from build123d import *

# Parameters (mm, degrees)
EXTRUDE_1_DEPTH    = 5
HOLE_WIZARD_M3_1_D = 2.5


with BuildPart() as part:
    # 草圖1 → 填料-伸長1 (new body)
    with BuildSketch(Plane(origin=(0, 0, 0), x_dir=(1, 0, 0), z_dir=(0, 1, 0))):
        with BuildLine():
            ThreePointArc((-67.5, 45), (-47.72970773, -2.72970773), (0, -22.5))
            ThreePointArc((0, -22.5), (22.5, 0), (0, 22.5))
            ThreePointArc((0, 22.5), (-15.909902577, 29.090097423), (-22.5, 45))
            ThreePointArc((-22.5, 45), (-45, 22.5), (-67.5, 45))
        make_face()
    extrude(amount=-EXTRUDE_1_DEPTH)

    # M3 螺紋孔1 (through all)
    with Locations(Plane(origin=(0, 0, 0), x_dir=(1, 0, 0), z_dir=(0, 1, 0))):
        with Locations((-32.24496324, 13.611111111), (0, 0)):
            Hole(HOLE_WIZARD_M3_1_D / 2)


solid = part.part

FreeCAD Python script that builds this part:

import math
import FreeCAD as App
import Part
import Sketcher
from FreeCAD import Vector

doc = App.newDocument("Part")
body = doc.addObject("PartDesign::Body", "Body")

# Sketch on XZ plane
sketch1 = body.newObject("Sketcher::SketchObject", "Sketch")
sketch1.AttachmentSupport = (doc.getObject("XZ_Plane"), [""])
sketch1.MapMode = "FlatFace"
sketch1.addGeometry(Part.ArcOfCircle(Part.Circle(Vector(0, -45, 0), Vector(0, 0, 1), 67.5), math.radians(90), math.radians(180)), False)
sketch1.addGeometry(Part.ArcOfCircle(Part.Circle(Vector(0, 0, 0), Vector(0, 0, 1), 22.5), math.radians(-90), math.radians(90)), False)
sketch1.addGeometry(Part.ArcOfCircle(Part.Circle(Vector(0, -45, 0), Vector(0, 0, 1), 22.5), math.radians(90), math.radians(180)), False)
sketch1.addGeometry(Part.ArcOfCircle(Part.Circle(Vector(-45, -45, 0), Vector(0, 0, 1), 22.5), math.radians(0), math.radians(180)), False)
sketch1.addConstraint(Sketcher.Constraint("Tangent", 0, 1, 1, 2))
sketch1.addConstraint(Sketcher.Constraint("Tangent", 1, 1, 2, 1))
sketch1.addConstraint(Sketcher.Constraint("Tangent", 2, 2, 3, 1))
sketch1.addConstraint(Sketcher.Constraint("Tangent", 3, 2, 0, 2))
sketch1.addConstraint(Sketcher.Constraint("Coincident", 1, 3, -1, 1))
sketch1.addConstraint(Sketcher.Constraint("Coincident", 2, 3, 0, 3))
sketch1.addConstraint(Sketcher.Constraint("Equal", 1, 2))
sketch1.addConstraint(Sketcher.Constraint("PointOnObject", 0, 3, -2))
sketch1.addConstraint(Sketcher.Constraint("Horizontal", 2, 3, 3, 3))
sketch1.addConstraint(Sketcher.Constraint("Radius", 0, 67.5))
pad1 = body.newObject("PartDesign::Pad", "Pad")
pad1.Profile = sketch1
pad1.Length = 5

# Sketch on XZ plane
sketch2 = body.newObject("Sketcher::SketchObject", "Sketch001")
sketch2.AttachmentSupport = (doc.getObject("XZ_Plane"), [""])
sketch2.MapMode = "FlatFace"
sketch2.addGeometry(Part.Circle(Vector(-32.244963, -13.611111, 0), Vector(0, 0, 1), 1.25), False)
sketch2.addGeometry(Part.Circle(Vector(0, 0, 0), Vector(0, 0, 1), 1.25), False)
sketch2.addConstraint(Sketcher.Constraint("Coincident", 1, 3, -1, 1))
sketch2.addConstraint(Sketcher.Constraint("Equal", 0, 1))
sketch2.addConstraint(Sketcher.Constraint("Diameter", 0, 2.5))
sketch2.addConstraint(Sketcher.Constraint("DistanceY", 0, 3, -1, 1, 13.611111))
sketch2.addConstraint(Sketcher.Constraint("DistanceX", 0, 3, -1, 1, 32.244963))
doc.recompute()
hole = body.newObject("PartDesign::Hole", "Hole")
hole.Profile = sketch2
hole.ThreadType = "None"
hole.Diameter = 2.5
hole.DepthType = "ThroughAll"
hole.Reversed = True

doc.recompute()
